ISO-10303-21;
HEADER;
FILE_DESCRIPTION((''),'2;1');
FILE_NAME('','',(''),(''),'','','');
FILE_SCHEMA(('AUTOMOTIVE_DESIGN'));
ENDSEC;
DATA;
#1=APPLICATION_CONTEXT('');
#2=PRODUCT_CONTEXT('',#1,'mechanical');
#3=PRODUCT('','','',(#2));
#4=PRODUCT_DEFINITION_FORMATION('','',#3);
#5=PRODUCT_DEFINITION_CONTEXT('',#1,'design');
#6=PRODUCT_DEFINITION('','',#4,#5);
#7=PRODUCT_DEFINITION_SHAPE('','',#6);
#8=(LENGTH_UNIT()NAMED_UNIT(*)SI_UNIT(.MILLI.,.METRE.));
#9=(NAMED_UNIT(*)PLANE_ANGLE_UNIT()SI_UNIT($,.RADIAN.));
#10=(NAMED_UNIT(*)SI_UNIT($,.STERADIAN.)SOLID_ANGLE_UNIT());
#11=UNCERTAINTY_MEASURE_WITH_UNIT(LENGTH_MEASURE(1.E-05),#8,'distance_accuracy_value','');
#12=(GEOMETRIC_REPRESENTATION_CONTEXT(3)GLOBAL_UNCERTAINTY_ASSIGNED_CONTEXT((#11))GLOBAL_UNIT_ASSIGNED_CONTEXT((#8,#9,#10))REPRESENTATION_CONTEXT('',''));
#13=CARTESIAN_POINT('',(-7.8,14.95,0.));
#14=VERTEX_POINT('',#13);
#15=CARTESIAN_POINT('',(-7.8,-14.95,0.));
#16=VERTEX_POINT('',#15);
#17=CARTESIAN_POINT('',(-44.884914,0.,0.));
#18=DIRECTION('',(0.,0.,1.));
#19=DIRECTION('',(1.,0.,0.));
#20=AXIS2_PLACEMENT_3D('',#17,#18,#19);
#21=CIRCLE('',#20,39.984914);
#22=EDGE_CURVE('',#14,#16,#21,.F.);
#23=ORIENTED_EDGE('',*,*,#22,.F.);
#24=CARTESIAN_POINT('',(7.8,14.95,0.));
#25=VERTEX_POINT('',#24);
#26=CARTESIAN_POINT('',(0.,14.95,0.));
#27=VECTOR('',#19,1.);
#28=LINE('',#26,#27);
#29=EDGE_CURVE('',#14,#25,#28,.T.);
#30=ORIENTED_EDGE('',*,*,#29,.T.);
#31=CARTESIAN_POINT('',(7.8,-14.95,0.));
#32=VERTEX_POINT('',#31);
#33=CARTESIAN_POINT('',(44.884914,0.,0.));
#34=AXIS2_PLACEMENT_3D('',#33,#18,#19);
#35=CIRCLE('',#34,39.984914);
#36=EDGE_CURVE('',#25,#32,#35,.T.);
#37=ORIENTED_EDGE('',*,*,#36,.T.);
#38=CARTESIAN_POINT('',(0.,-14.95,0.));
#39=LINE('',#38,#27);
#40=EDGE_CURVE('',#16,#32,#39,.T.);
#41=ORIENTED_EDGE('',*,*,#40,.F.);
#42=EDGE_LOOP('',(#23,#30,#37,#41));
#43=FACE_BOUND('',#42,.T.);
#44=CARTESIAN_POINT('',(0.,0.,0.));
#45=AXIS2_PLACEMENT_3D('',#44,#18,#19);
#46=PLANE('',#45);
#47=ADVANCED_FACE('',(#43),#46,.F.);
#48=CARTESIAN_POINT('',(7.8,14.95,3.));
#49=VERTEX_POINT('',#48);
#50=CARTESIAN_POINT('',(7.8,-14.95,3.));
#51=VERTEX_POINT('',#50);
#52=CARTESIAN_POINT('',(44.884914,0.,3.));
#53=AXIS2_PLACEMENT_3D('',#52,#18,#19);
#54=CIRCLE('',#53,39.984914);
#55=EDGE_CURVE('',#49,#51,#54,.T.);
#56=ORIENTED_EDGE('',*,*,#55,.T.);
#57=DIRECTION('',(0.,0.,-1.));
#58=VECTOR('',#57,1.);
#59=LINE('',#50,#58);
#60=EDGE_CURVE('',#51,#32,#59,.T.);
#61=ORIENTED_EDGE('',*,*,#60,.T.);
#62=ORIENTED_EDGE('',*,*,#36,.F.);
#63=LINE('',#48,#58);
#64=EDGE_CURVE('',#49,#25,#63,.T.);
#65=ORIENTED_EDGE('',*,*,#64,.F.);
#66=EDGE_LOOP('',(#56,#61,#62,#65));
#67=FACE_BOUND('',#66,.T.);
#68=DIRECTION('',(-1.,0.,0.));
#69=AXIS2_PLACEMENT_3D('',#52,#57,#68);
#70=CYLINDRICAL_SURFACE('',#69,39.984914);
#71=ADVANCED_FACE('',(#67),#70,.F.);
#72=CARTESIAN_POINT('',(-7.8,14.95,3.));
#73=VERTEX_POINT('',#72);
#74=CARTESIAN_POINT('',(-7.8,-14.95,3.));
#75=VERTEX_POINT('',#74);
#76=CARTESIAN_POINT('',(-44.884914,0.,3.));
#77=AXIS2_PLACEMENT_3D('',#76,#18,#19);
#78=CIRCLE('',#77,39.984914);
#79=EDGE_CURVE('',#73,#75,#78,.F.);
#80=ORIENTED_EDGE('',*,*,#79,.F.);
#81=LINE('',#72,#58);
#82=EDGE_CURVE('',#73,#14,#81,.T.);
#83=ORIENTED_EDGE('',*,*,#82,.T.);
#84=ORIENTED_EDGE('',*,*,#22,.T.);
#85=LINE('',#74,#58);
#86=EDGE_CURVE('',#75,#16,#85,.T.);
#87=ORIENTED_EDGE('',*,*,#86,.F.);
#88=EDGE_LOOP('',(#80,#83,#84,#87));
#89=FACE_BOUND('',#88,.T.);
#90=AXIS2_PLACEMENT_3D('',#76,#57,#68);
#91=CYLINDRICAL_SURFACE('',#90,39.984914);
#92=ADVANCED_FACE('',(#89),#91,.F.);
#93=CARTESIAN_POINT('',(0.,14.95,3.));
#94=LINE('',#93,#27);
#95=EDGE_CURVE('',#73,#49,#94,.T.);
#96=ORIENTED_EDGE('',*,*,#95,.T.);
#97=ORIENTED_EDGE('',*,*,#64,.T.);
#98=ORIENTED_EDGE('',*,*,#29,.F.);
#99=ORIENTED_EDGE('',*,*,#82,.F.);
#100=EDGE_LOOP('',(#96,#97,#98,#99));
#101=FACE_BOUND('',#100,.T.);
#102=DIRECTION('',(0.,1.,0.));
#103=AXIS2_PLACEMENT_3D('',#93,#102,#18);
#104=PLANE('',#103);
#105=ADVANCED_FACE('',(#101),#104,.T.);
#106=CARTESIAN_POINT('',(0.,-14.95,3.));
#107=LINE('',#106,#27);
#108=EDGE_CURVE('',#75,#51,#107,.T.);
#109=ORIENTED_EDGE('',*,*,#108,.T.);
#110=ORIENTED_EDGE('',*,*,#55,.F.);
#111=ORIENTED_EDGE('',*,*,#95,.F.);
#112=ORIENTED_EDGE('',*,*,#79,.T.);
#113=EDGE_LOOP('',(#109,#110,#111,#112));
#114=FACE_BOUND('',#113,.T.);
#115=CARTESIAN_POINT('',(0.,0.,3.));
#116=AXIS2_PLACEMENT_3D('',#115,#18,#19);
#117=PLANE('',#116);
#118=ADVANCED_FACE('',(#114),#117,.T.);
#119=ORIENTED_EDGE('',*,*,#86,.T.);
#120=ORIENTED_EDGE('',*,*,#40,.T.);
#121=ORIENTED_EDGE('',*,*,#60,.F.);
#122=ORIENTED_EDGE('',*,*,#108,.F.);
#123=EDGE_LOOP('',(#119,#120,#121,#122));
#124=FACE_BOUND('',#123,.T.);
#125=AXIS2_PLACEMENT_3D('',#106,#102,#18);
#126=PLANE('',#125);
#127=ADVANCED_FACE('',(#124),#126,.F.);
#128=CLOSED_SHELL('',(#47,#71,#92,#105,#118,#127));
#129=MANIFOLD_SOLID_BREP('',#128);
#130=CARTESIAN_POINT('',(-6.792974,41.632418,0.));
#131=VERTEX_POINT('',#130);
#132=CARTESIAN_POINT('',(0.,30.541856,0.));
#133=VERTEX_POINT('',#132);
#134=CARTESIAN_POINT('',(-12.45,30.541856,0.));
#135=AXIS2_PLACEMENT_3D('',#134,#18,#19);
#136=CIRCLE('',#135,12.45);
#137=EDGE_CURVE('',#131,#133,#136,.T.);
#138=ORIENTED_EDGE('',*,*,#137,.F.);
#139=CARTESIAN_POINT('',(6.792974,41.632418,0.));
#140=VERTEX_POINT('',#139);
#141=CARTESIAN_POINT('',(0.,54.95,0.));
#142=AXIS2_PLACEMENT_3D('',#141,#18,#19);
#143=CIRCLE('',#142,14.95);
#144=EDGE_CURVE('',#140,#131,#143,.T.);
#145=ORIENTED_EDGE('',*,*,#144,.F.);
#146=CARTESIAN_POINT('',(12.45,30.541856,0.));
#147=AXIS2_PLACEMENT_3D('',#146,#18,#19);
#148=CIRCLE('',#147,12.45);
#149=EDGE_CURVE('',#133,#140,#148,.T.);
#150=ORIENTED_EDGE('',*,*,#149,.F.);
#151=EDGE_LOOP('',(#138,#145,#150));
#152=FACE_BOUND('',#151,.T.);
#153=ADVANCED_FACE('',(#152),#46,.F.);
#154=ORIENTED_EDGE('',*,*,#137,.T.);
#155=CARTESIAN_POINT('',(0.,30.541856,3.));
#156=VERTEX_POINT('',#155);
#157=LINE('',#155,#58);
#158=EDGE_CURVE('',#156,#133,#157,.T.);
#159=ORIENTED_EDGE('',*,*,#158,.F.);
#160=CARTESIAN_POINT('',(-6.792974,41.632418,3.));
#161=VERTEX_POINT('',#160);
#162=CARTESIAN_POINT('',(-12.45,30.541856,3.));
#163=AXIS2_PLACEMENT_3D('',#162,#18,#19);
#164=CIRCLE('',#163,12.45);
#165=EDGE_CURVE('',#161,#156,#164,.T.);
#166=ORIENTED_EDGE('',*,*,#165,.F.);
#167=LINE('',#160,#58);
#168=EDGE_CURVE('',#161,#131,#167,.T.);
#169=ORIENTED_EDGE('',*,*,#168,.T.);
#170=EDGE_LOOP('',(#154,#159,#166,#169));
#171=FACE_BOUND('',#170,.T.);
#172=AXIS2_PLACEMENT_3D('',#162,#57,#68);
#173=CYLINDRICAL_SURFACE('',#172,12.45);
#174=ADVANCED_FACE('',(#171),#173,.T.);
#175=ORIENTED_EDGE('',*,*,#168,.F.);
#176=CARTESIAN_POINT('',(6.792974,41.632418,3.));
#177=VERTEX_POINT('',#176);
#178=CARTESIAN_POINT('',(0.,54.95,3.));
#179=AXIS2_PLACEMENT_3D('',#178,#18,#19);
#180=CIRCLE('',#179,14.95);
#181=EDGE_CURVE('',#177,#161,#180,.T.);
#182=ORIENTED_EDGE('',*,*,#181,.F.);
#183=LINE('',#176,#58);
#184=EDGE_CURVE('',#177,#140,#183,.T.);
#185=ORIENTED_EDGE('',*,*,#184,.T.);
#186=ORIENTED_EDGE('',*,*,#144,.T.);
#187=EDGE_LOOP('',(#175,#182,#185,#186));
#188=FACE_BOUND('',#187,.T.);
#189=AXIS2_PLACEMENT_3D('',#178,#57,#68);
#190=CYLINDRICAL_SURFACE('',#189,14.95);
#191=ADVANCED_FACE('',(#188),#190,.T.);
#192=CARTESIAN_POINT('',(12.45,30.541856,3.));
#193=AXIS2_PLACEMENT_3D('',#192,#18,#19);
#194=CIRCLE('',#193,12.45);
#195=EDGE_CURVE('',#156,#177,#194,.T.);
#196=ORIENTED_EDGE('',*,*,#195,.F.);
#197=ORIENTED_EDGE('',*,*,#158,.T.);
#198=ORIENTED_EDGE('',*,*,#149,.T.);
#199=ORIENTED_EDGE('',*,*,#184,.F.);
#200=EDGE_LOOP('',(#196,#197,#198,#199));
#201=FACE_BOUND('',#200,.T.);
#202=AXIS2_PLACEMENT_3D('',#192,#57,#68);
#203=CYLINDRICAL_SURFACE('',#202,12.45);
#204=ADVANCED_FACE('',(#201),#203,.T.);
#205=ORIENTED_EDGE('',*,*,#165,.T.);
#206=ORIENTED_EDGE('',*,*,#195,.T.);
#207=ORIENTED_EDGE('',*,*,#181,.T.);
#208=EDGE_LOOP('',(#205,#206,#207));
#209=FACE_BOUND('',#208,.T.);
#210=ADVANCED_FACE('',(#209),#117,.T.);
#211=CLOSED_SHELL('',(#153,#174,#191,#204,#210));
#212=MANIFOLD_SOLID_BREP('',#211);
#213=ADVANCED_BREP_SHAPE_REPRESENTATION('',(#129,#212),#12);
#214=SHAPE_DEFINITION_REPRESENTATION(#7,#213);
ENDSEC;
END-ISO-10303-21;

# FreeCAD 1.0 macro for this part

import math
import FreeCAD as App
import Part
import Sketcher
from FreeCAD import Vector
Q = App.Units.Quantity

doc = App.newDocument("Part")
params = doc.addObject("Spreadsheet::Sheet", "Params")
for row, (alias, value) in enumerate([
    ("sketch1_width", "15.6 mm"),
    ("pad1_length", "3 mm"),
    ("sketch2_radius", "14.95 mm"),
    ("sketch2_radius2", "12.45 mm"),
    ("pad2_length", "3 mm"),
], start=1):
    params.set(f"A{row}", alias)
    params.set(f"B{row}", "=" + value)
    params.setAlias(f"B{row}", alias)

body = doc.addObject("PartDesign::Body", "Body")

# Sketch on XY plane
sketch1 = doc.addObject("Sketcher::SketchObject", "Sketch")
body.addObject(sketch1)
sketch1.AttachmentSupport = (doc.XY_Plane, [""])
sketch1.MapMode = "FlatFace"
sketch1.addGeometry([
    Part.LineSegment(Vector(7.8, 14.95, 0), Vector(-7.8, 14.95, 0)),
    Part.ArcOfCircle(Part.Circle(Vector(-44.884914, 0, 0), Vector(0, 0, 1), 39.984914), math.radians(-21.955787), math.radians(21.955787)),
    Part.LineSegment(Vector(-7.8, -14.95, 0), Vector(7.8, -14.95, 0)),
    Part.ArcOfCircle(Part.Circle(Vector(44.884914, 0, 0), Vector(0, 0, 1), 39.984914), math.radians(158.044213), math.radians(201.955787)),
], False)
sketch1.addConstraint([
    Sketcher.Constraint("Coincident", 0, 2, 1, 2),
    Sketcher.Constraint("Coincident", 1, 1, 2, 1),
    Sketcher.Constraint("Coincident", 2, 2, 3, 2),
    Sketcher.Constraint("Coincident", 3, 1, 0, 1),
    Sketcher.Constraint("Horizontal", 0),
    Sketcher.Constraint("Horizontal", 2),
    Sketcher.Constraint("Equal", 1, 3),
    Sketcher.Constraint("Symmetric", 1, 3, 3, 3, -1, 1),
    Sketcher.Constraint("Symmetric", 0, 2, 1, 1, -1),
    Sketcher.Constraint("DistanceX", 0, 2, 0, 1, Q("15.6 mm")),
    Sketcher.Constraint("DistanceY", 1, 1, 0, 2, Q("29.9 mm")),
    Sketcher.Constraint("Radius", 1, Q("39.984914 mm")),
])
sketch1.setExpression("Constraints[9]", "Params.sketch1_width")
pad1 = doc.addObject("PartDesign::Pad", "Pad")
body.addObject(pad1)
pad1.Profile = sketch1
pad1.setExpression("Length", "Params.pad1_length")
body2 = doc.addObject("PartDesign::Body", "Body001")

# Sketch on XY plane
sketch2 = doc.addObject("Sketcher::SketchObject", "Sketch001")
body2.addObject(sketch2)
sketch2.AttachmentSupport = (doc.getObject("XY_Plane001"), [""])
sketch2.MapMode = "FlatFace"
sketch2.addGeometry([
    Part.ArcOfCircle(Part.Circle(Vector(0, 54.95, 0), Vector(0, 0, 1), 14.95), math.radians(-62.974978), math.radians(242.974978)),
    Part.ArcOfCircle(Part.Circle(Vector(-12.45, 30.541856, 0), Vector(0, 0, 1), 12.45), math.radians(62.97498), math.radians(360)),
    Part.ArcOfCircle(Part.Circle(Vector(12.45, 30.541856, 0), Vector(0, 0, 1), 12.45), math.radians(-180), math.radians(117.02502)),
], False)
sketch2.addConstraint([
    Sketcher.Constraint("Tangent", 0, 2, 1, 1),
    Sketcher.Constraint("Tangent", 1, 2, 2, 1),
    Sketcher.Constraint("Tangent", 2, 2, 0, 1),
    Sketcher.Constraint("Equal", 1, 2),
    Sketcher.Constraint("Symmetric", 1, 3, 2, 3, -2),
    Sketcher.Constraint("Radius", 0, Q("14.95 mm")),
    Sketcher.Constraint("Radius", 1, Q("12.45 mm")),
    Sketcher.Constraint("DistanceY", -1, 1, 0, 3, Q("54.95 mm")),
])
sketch2.setExpression("Constraints[5]", "Params.sketch2_radius")
sketch2.setExpression("Constraints[6]", "Params.sketch2_radius2")
pad2 = doc.addObject("PartDesign::Pad", "Pad001")
body2.addObject(pad2)
pad2.Profile = sketch2
pad2.setExpression("Length", "Params.pad2_length")

doc.recompute()
